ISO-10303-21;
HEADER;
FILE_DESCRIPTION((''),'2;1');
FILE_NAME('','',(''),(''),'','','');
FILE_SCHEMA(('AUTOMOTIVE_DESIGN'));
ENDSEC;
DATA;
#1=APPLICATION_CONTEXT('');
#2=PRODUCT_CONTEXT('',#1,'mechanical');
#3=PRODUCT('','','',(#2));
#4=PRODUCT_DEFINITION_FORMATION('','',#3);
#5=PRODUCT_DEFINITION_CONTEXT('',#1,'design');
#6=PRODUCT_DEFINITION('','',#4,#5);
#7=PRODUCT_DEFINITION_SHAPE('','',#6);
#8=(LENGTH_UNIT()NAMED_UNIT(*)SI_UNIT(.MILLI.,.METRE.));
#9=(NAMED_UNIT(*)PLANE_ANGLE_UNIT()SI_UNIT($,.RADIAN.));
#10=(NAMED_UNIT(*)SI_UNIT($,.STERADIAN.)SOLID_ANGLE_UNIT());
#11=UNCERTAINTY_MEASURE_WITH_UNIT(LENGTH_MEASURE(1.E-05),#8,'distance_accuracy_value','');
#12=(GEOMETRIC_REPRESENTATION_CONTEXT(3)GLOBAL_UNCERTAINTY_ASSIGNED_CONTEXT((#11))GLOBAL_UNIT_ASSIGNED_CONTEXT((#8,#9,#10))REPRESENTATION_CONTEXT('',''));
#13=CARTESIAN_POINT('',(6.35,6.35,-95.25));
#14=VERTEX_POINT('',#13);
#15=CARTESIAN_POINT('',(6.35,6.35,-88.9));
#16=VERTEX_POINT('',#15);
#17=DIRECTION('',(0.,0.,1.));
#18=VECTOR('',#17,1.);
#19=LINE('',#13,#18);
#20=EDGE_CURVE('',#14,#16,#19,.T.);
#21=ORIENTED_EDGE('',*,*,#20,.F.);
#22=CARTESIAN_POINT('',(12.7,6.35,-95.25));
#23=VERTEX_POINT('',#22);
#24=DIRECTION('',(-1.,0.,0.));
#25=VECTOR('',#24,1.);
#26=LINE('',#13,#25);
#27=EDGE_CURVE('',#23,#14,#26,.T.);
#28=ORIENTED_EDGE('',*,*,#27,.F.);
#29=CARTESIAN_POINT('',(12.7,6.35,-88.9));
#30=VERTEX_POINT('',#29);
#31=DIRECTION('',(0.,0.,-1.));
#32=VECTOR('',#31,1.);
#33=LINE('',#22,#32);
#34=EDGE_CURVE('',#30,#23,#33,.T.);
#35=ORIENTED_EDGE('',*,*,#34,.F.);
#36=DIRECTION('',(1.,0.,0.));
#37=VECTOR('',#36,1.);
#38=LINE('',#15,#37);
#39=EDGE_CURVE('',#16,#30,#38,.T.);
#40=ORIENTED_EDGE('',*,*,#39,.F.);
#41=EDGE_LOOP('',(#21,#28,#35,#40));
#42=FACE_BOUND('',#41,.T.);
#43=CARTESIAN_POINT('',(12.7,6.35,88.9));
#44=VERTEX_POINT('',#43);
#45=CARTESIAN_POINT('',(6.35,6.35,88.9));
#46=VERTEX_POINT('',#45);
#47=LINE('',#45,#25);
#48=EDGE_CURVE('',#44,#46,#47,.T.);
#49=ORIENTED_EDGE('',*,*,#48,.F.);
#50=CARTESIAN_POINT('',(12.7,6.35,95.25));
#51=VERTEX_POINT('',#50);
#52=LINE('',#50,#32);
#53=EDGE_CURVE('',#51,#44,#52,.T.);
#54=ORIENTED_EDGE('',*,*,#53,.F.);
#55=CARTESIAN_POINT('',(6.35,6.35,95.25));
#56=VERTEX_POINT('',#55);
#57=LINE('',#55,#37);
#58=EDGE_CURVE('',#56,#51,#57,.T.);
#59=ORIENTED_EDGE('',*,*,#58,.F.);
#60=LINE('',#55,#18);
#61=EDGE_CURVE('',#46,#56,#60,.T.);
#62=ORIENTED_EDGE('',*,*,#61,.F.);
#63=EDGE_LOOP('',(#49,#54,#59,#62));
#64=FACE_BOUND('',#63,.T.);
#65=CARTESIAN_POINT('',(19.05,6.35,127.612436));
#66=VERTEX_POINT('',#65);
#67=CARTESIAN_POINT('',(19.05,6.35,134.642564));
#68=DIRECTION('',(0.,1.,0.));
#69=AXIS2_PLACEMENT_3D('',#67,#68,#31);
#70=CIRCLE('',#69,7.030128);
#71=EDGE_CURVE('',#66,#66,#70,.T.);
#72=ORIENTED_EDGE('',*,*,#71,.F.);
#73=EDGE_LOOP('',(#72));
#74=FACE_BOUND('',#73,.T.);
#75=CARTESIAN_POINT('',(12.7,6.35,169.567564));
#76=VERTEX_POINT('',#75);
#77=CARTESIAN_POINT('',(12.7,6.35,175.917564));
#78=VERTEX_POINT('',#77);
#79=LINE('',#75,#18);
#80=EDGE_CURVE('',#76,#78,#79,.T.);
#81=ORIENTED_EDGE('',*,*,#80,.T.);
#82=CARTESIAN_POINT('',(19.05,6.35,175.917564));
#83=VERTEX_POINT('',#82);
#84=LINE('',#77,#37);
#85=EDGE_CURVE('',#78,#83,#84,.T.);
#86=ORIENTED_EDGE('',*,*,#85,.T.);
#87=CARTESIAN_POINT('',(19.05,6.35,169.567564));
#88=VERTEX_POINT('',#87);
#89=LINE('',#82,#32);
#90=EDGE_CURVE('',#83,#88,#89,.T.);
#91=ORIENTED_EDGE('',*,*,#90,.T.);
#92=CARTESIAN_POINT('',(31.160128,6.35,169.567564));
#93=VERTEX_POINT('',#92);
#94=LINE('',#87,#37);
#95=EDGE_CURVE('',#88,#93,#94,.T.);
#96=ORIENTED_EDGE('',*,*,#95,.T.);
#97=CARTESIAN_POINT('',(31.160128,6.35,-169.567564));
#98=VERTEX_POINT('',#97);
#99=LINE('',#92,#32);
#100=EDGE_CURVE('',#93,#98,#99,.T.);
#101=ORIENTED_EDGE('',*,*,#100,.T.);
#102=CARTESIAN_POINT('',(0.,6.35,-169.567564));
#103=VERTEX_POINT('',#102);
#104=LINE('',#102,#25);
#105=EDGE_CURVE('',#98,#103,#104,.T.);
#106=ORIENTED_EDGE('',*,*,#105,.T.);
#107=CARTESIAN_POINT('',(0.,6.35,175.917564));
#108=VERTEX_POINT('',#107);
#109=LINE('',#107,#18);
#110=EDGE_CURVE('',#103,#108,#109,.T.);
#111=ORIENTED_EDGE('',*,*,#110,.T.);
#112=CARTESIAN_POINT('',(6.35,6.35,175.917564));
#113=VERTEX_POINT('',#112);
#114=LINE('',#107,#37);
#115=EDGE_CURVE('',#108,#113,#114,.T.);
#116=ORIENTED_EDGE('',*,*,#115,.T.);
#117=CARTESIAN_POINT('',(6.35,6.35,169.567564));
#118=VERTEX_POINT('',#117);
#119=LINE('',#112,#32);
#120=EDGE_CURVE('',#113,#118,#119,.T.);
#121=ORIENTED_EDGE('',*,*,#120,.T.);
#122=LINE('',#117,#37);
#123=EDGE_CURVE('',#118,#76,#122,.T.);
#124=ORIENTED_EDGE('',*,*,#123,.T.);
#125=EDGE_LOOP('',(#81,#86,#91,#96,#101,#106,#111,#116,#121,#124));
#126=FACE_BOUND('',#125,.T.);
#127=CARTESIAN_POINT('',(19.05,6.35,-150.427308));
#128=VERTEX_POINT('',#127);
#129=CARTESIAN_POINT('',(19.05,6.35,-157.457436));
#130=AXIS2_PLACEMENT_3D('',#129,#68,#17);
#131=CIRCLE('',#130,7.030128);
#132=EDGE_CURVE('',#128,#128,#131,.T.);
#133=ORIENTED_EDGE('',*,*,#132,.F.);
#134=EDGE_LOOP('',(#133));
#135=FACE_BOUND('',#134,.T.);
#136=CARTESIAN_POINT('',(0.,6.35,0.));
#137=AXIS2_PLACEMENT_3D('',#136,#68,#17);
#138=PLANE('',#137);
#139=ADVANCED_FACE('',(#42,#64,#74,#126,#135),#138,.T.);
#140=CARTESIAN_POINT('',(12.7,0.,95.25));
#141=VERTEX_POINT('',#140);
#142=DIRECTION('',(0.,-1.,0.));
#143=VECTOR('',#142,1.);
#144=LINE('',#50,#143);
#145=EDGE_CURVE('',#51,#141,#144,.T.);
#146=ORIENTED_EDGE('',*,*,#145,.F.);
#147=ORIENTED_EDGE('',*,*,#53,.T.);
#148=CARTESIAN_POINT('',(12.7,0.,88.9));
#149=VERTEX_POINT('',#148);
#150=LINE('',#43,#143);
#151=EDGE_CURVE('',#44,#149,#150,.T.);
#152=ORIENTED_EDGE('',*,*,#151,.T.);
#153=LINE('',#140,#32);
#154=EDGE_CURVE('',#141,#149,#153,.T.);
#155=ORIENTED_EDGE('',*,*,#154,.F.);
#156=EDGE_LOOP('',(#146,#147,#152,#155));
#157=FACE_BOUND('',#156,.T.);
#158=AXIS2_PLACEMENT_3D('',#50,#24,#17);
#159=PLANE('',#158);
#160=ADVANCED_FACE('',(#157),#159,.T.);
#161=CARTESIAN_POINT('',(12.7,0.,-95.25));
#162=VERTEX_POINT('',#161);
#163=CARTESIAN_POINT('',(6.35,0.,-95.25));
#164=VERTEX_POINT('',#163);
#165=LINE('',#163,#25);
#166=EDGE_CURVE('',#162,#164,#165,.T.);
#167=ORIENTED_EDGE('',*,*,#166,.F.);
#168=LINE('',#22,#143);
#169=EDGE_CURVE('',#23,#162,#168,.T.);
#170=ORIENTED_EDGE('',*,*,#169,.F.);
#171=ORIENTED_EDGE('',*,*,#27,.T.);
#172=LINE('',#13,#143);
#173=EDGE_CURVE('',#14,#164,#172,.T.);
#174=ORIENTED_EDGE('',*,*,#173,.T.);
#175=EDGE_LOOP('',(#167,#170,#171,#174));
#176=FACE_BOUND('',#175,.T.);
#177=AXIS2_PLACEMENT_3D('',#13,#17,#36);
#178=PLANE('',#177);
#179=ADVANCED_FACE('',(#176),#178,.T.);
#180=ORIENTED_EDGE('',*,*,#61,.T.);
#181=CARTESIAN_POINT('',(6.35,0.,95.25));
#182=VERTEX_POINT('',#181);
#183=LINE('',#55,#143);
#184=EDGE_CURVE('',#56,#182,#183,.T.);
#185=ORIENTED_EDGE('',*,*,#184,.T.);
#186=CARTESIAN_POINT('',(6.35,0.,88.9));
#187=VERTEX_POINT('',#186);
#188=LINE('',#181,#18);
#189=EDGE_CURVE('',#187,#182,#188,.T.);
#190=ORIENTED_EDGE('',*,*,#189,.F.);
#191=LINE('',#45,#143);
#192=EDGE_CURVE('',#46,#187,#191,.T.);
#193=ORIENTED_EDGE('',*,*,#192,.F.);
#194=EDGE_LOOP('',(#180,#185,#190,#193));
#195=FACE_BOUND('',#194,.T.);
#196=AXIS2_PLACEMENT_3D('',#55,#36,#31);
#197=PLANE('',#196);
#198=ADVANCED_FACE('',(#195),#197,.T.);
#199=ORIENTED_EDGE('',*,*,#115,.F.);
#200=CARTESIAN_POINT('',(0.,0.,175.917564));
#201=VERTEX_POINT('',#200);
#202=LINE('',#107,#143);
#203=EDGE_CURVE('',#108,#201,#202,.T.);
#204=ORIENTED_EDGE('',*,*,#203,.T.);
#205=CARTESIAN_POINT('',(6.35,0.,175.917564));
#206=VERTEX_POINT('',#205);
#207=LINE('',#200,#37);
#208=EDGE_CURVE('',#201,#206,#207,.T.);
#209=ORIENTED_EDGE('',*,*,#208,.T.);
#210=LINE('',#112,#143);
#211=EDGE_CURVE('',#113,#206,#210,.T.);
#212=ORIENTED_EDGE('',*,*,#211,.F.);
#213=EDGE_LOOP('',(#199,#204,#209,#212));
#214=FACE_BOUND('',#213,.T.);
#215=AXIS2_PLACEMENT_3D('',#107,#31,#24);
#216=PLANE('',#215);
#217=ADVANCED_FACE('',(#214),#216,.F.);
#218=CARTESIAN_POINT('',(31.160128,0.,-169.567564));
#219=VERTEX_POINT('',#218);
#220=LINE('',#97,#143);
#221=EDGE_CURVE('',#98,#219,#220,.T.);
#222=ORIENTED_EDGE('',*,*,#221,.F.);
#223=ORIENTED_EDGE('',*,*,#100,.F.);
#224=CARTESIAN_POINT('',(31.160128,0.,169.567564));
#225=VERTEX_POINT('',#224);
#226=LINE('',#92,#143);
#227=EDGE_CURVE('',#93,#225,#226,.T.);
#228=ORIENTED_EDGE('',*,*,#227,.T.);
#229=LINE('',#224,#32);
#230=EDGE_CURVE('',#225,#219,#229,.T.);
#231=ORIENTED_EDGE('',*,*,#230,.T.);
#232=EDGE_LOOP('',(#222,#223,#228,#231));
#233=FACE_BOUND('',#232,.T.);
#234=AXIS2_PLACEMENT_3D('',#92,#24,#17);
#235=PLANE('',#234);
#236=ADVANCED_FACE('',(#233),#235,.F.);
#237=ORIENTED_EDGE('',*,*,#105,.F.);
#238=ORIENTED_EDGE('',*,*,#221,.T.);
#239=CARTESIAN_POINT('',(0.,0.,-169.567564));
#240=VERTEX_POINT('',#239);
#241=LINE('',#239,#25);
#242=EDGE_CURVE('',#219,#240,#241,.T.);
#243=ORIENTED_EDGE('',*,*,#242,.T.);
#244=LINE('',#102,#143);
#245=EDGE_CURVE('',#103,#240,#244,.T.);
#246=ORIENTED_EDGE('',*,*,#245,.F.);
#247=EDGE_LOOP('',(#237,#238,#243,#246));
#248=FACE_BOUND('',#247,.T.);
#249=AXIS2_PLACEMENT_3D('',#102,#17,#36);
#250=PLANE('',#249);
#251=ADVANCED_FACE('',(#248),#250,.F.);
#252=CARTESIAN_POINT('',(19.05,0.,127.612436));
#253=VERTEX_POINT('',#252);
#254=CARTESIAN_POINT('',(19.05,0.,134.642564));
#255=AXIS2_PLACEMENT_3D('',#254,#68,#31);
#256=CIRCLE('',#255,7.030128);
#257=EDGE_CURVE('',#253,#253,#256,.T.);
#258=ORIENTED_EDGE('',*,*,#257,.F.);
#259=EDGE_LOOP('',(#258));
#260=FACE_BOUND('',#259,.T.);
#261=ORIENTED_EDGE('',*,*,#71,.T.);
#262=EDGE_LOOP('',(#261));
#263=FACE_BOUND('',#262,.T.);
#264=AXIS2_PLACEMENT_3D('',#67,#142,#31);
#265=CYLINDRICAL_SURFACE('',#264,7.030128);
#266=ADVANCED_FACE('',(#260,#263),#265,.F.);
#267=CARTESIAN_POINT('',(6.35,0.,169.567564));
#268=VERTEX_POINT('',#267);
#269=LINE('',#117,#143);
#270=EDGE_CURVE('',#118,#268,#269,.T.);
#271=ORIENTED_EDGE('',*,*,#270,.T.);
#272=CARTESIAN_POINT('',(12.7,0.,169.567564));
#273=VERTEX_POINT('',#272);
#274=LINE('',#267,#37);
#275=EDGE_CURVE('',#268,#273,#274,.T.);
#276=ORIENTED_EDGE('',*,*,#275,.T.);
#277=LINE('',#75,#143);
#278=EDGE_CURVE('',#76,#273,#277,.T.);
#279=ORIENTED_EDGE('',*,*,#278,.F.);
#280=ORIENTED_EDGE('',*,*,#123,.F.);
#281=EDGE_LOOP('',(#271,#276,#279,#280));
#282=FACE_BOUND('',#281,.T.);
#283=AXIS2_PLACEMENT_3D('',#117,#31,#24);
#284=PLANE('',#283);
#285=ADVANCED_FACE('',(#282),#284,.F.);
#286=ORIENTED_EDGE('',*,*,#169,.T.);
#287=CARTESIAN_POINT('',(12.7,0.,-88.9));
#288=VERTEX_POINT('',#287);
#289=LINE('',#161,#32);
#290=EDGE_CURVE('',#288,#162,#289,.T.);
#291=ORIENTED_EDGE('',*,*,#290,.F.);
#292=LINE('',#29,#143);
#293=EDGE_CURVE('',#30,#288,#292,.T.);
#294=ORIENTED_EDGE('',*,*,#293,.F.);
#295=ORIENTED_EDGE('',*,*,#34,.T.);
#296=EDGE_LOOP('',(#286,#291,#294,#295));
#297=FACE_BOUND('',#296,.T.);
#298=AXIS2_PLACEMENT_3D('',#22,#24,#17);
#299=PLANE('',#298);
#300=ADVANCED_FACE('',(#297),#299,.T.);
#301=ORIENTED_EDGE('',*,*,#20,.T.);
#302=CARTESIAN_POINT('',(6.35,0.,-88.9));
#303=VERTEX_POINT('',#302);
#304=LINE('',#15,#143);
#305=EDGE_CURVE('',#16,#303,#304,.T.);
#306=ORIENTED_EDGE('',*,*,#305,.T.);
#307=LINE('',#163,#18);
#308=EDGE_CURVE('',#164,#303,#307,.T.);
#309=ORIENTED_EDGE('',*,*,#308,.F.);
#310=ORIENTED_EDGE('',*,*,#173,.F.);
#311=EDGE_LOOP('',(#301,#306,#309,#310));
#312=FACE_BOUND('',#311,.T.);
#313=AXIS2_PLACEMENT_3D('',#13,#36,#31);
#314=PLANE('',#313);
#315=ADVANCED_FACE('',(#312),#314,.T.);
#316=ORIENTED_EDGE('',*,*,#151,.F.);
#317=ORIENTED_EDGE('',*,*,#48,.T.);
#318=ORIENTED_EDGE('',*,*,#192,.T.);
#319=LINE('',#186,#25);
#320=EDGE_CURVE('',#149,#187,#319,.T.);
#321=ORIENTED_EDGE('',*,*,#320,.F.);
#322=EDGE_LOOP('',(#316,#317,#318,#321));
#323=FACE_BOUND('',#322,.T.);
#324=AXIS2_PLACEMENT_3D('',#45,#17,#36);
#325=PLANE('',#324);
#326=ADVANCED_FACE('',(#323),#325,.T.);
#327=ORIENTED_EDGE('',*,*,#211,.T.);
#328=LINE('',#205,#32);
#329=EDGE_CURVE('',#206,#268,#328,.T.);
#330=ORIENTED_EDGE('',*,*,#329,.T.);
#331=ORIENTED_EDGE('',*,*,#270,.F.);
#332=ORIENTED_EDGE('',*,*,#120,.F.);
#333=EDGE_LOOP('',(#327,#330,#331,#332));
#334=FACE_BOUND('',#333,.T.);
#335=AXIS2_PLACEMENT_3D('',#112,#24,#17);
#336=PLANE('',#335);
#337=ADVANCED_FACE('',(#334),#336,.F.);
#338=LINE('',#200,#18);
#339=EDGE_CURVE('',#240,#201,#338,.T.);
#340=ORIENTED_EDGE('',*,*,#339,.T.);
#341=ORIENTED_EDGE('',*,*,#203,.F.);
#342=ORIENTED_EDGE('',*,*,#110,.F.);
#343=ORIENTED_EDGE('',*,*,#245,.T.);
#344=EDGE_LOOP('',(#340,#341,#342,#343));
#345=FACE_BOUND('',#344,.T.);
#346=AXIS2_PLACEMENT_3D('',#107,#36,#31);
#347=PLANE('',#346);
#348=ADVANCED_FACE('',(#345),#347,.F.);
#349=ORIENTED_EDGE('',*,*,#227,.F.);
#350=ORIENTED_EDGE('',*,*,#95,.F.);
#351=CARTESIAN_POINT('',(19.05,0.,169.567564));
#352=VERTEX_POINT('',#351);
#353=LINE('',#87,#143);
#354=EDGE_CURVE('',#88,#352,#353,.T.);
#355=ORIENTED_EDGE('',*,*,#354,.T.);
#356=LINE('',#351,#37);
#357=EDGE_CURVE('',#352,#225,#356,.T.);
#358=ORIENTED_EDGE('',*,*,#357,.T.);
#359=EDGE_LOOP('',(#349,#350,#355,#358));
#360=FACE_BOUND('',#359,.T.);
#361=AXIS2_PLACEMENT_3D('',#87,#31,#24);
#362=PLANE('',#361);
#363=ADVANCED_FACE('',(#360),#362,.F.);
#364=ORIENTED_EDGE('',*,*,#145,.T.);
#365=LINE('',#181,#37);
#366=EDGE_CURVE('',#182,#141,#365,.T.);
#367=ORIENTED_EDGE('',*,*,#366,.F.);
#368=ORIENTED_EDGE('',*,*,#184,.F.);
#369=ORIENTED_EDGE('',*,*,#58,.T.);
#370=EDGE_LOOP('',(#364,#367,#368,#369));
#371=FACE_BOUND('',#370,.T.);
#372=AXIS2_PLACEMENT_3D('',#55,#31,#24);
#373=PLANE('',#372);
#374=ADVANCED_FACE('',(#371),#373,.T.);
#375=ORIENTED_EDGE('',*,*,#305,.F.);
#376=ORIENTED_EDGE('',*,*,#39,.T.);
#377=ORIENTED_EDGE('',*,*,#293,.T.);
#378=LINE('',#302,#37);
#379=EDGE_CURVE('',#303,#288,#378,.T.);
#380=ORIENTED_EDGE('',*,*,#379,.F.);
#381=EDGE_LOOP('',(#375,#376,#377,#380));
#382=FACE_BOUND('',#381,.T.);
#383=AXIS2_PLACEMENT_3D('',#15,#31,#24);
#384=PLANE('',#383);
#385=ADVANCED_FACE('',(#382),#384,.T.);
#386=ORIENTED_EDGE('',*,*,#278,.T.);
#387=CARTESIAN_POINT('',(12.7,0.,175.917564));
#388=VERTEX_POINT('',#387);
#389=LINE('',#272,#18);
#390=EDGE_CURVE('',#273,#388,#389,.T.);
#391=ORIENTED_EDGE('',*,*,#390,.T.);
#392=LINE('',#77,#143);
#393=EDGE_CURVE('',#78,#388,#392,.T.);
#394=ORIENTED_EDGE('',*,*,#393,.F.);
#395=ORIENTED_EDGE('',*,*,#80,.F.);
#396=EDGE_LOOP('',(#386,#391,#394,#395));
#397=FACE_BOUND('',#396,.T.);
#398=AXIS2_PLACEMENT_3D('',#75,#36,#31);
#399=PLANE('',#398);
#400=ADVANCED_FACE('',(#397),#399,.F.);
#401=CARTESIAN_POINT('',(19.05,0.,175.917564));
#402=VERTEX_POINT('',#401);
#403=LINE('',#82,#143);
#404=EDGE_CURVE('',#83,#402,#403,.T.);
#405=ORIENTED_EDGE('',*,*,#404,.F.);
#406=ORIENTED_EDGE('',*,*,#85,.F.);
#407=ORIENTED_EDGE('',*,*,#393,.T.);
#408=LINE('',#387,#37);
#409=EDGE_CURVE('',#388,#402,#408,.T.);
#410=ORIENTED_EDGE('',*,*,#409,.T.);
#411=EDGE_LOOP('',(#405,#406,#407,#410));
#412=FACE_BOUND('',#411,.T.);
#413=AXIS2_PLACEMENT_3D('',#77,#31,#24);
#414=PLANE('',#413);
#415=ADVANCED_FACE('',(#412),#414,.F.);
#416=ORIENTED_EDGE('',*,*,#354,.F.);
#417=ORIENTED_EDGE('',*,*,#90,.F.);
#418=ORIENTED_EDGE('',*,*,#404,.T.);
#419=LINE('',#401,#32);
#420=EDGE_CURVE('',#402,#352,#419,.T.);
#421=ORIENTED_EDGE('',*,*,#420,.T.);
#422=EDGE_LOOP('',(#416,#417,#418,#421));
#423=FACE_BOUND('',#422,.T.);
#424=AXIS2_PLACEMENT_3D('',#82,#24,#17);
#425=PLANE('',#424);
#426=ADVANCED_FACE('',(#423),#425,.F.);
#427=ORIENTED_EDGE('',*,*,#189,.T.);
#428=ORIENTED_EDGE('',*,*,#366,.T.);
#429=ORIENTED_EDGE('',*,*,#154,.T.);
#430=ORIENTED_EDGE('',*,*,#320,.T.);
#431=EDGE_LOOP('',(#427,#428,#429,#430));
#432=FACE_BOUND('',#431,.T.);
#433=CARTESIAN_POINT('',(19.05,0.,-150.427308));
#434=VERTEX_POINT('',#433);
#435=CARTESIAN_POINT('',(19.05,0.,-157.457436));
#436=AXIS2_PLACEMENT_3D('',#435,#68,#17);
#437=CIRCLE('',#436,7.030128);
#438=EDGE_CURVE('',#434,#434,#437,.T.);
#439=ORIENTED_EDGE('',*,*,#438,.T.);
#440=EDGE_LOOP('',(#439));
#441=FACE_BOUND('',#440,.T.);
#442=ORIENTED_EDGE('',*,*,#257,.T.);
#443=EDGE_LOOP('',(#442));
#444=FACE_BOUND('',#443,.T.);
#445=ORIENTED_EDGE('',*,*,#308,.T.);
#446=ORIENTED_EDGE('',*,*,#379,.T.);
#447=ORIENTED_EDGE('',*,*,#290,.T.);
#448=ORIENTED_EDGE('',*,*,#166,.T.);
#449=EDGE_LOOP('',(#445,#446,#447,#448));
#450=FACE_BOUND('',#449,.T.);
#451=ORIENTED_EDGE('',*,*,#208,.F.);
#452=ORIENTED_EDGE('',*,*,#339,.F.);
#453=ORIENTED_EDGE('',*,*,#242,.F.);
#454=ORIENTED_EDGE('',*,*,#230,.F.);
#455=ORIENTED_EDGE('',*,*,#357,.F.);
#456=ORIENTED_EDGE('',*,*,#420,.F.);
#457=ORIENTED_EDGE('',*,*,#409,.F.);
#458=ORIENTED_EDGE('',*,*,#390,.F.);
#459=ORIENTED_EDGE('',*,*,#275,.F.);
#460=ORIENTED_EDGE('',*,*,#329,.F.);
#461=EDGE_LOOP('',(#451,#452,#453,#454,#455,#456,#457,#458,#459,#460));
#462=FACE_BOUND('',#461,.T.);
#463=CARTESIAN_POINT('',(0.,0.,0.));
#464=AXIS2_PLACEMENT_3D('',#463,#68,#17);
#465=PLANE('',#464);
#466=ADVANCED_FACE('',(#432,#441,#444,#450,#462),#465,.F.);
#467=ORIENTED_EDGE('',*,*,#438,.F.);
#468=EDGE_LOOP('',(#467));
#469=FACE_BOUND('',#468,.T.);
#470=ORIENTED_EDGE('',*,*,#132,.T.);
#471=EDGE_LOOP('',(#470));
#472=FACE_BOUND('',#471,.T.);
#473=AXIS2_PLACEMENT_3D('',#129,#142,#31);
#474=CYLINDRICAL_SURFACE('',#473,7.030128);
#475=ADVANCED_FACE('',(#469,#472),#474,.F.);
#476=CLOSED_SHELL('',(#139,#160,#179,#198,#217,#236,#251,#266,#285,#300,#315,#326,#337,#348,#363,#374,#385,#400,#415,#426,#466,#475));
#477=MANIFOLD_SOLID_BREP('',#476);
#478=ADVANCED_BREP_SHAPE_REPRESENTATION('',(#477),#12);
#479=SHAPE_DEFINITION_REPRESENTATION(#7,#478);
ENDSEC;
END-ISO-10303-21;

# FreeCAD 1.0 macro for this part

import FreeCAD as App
import Part
import Sketcher

V = App.Vector
Q = App.Units.Quantity


def add_polygon(sketch, points):
    """Adds a closed chain of lines whose ends are joined by coincident constraints."""
    first, n = sketch.GeometryCount, len(points)
    for a, b in zip(points, points[1:] + points[:1]):
        sketch.addGeometry(Part.LineSegment(App.Vector(*a, 0), App.Vector(*b, 0)), False)
    for i in range(n):
        sketch.addConstraint(Sketcher.Constraint("Coincident", first + i, 2, first + (i + 1) % n, 1))

doc = App.newDocument("Part")
body = doc.addObject("PartDesign::Body", "Body")

sketch1 = body.newObject("Sketcher::SketchObject", "Sketch")
sketch1.AttachmentSupport = (doc.getObject("XZ_Plane"), [""])
sketch1.MapMode = "FlatFace"
add_polygon(sketch1, [(31.160128, 169.567564), (31.160128, -169.567564), (0, -169.567564), (0, 175.917564), (6.35, 175.917564), (6.35, 169.567564), (12.7, 169.567564), (12.7, 175.917564), (19.05, 175.917564), (19.05, 169.567564)])
add_polygon(sketch1, [(12.7, 95.25), (6.35, 95.25), (6.35, 88.9), (12.7, 88.9)])
sketch1.addGeometry(Part.Circle(V(19.05, 134.642564, 0), V(0, 0, 1), 7.030128), False)
add_polygon(sketch1, [(12.7, -88.9), (6.35, -88.9), (6.35, -95.25), (12.7, -95.25)])
sketch1.addGeometry(Part.Circle(V(19.05, -157.457436, 0), V(0, 0, 1), 7.030128), False)
sketch1.addConstraint(Sketcher.Constraint("Vertical", 0))
sketch1.addConstraint(Sketcher.Constraint("Horizontal", 1))
sketch1.addConstraint(Sketcher.Constraint("Vertical", 2))
sketch1.addConstraint(Sketcher.Constraint("Horizontal", 3))
sketch1.addConstraint(Sketcher.Constraint("Vertical", 4))
sketch1.addConstraint(Sketcher.Constraint("Horizontal", 5))
sketch1.addConstraint(Sketcher.Constraint("Vertical", 6))
sketch1.addConstraint(Sketcher.Constraint("Horizontal", 7))
sketch1.addConstraint(Sketcher.Constraint("Vertical", 8))
sketch1.addConstraint(Sketcher.Constraint("Horizontal", 9))
sketch1.addConstraint(Sketcher.Constraint("Horizontal", 10))
sketch1.addConstraint(Sketcher.Constraint("Vertical", 11))
sketch1.addConstraint(Sketcher.Constraint("Horizontal", 12))
sketch1.addConstraint(Sketcher.Constraint("Vertical", 13))
sketch1.addConstraint(Sketcher.Constraint("Horizontal", 15))
sketch1.addConstraint(Sketcher.Constraint("Vertical", 16))
sketch1.addConstraint(Sketcher.Constraint("Horizontal", 17))
sketch1.addConstraint(Sketcher.Constraint("Vertical", 18))
sketch1.addConstraint(Sketcher.Constraint("Equal", 14, 19))
sketch1.addConstraint(Sketcher.Constraint("Symmetric", 11, 2, 15, 2, -1))
sketch1.addConstraint(Sketcher.Constraint("Symmetric", 13, 2, 17, 2, -1))
sketch1.addConstraint(Sketcher.Constraint("PointOnObject", 1, 2, -2))
sketch1.addConstraint(Sketcher.Constraint("Horizontal", 3, 2, 6, 2))
sketch1.addConstraint(Sketcher.Constraint("Horizontal", 5, 2, 8, 2))
sketch1.addConstraint(Sketcher.Constraint("Vertical", 14, 3, 19, 3))
sketch1.addConstraint(Sketcher.Constraint("Vertical", 19, 3, 7, 2))
sketch1.addConstraint(Sketcher.Constraint("Vertical", 4, 2, 10, 2))
sketch1.addConstraint(Sketcher.Constraint("Vertical", 6, 2, 12, 2))
sketch1.addConstraint(Sketcher.Constraint("Equal", 3, 5))
sketch1.addConstraint(Sketcher.Constraint("Equal", 5, 7))
sketch1.addConstraint(Sketcher.Constraint("Equal", 17, 4))
sketch1.addConstraint(Sketcher.Constraint("Equal", 8, 11))
sketch1.addConstraint(Sketcher.Constraint("DistanceY", 15, 2, 11, 2, Q("7 in")))
sketch1.addConstraint(Sketcher.Constraint("DistanceX", 3, 1, 3, 2, Q("0.25 in")))
sketch1.addConstraint(Sketcher.Constraint("DistanceY", 19, 3, 14, 3, Q("11.5 in")))
sketch1.addConstraint(Sketcher.Constraint("DistanceY", 14, 3, 2, 2, Q("1.625 in")))
sketch1.addConstraint(Sketcher.Constraint("Diameter", 14, 14.060256))
sketch1.addConstraint(Sketcher.Constraint("DistanceX", 1, 2, 1, 1, 31.160128))
sketch1.addConstraint(Sketcher.Constraint("DistanceY", 0, 2, 0, 1, 339.135128))
sketch1.addConstraint(Sketcher.Constraint("DistanceY", -1, 1, 14, 3, 134.642564))
pad1 = body.newObject("PartDesign::Pad", "Pad")
pad1.Profile = sketch1
pad1.Length = Q("0.25 in")
pad1.Reversed = True

doc.recompute()
